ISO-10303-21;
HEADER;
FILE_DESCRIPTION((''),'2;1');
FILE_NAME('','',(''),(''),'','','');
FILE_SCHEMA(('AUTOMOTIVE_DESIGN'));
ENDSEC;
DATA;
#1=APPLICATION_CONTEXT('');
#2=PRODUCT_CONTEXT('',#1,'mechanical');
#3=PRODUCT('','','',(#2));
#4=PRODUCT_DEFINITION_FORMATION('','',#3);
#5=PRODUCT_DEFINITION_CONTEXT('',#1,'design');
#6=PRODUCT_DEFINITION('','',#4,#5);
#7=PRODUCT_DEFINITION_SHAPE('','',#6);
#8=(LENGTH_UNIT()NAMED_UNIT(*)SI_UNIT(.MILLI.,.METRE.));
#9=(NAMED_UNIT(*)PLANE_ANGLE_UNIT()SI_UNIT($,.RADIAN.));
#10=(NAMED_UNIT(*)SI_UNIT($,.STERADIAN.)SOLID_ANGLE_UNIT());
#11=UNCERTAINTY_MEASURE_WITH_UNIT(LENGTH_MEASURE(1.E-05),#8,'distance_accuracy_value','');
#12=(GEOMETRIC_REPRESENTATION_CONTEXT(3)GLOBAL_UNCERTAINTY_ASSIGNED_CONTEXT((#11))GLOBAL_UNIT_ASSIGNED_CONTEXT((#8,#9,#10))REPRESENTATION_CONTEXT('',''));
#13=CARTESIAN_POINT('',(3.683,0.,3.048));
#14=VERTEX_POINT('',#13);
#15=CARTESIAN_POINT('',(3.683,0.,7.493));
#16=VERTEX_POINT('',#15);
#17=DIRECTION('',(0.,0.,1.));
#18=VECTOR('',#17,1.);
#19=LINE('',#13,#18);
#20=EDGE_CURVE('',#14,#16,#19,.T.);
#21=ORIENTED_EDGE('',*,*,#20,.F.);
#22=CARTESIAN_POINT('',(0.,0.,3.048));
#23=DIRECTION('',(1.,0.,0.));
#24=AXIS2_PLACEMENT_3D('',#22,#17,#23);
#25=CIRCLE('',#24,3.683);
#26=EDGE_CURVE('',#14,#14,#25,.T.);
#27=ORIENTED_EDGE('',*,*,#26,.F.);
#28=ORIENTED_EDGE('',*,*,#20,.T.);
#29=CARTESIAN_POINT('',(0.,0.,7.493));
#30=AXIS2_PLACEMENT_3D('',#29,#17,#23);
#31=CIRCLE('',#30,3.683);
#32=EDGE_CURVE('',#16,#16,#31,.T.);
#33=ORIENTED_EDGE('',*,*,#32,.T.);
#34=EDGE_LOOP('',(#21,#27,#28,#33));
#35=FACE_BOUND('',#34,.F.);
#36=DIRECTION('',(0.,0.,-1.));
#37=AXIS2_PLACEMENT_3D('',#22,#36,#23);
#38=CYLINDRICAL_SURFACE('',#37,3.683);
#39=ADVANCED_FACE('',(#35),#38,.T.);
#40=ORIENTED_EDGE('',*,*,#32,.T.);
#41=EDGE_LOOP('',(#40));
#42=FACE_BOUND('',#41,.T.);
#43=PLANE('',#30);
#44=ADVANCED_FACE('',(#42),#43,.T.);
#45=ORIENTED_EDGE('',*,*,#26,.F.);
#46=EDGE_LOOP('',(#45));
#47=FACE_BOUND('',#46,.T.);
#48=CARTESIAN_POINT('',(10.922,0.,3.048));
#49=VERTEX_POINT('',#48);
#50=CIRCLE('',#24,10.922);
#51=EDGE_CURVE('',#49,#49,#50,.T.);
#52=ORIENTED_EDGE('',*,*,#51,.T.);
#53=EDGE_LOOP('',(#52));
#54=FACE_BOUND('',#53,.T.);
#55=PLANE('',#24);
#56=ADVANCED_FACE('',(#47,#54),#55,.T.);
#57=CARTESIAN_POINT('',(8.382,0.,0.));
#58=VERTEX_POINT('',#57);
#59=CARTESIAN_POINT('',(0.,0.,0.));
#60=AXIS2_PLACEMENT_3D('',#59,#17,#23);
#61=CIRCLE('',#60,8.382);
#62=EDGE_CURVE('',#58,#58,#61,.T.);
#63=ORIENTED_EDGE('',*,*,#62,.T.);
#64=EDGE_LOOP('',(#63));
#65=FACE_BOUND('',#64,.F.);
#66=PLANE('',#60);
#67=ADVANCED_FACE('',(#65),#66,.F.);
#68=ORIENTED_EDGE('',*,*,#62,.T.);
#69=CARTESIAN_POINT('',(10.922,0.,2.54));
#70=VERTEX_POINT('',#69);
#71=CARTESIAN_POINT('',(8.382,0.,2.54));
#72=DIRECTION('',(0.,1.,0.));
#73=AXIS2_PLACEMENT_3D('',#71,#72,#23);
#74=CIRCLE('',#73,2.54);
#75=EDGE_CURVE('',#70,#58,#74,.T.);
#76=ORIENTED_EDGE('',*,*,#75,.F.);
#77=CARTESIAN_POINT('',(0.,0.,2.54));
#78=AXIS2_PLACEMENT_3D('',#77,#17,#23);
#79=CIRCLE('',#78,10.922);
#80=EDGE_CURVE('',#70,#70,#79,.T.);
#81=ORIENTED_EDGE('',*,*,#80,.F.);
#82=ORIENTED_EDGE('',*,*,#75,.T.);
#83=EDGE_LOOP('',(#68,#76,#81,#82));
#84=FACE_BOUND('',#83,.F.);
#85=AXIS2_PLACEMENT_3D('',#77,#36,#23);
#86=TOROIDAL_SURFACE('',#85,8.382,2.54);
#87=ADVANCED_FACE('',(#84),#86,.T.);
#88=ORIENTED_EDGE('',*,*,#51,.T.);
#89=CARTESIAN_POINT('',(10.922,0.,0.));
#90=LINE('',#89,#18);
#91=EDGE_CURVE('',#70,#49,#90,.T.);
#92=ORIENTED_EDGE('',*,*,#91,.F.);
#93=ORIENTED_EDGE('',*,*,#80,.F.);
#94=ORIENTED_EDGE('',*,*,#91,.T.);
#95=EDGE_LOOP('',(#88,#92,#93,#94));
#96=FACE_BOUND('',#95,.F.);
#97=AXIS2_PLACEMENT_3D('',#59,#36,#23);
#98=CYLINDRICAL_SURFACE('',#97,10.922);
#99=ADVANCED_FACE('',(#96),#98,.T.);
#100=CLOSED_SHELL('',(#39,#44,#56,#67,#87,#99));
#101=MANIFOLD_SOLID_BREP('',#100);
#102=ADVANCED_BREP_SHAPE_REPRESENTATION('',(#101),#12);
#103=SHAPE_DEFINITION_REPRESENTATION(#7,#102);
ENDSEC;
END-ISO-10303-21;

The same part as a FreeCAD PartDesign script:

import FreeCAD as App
import Part
import Sketcher
Q = App.Units.Quantity


def edges_at(feature, points):
    """Names of the edges that pass closest to the given points."""
    edges = feature.Shape.Edges
    near = lambda p: min(range(len(edges)), key=lambda i: edges[i].distToShape(Part.Vertex(*p))[0])
    return sorted({f"Edge{near(p) + 1}" for p in points})

doc = App.newDocument("Part")
params = doc.addObject("Spreadsheet::Sheet", "Params")
for row, (alias, value) in enumerate([
    ("sketch1_diameter", "0.86 in"),
    ("pad1_length", "0.12 in"),
    ("fillet_radius", "0.1 in"),
    ("sketch2_diameter", "0.29 in"),
    ("pad2_length", "0.175 in"),
], start=1):
    params.set(f"A{row}", alias)
    params.set(f"B{row}", "=" + value)
    params.setAlias(f"B{row}", alias)

body = doc.addObject("PartDesign::Body", "Body")

sketch1 = body.newObject("Sketcher::SketchObject", "Sketch")
sketch1.AttachmentSupport = (doc.getObject("XY_Plane"), [""])
sketch1.MapMode = "FlatFace"
sketch1.addGeometry(Part.Circle(App.Vector(0, 0, 0), App.Vector(0, 0, 1), 10.922), False)
sketch1.addConstraint(Sketcher.Constraint("Coincident", 0, 3, -1, 1))
sketch1.addConstraint(Sketcher.Constraint("Diameter", 0, Q("0.86 in")))
sketch1.setExpression("Constraints[1]", "Params.sketch1_diameter")
pad1 = body.newObject("PartDesign::Pad", "Pad")
pad1.Profile = sketch1
pad1.setExpression("Length", "Params.pad1_length")
doc.recompute()

fillet = body.newObject("PartDesign::Fillet", "Fillet")
fillet.Base = (pad1, edges_at(pad1, [(-10.922, 0, 0)]))
fillet.setExpression("Radius", "Params.fillet_radius")

sketch2 = body.newObject("Sketcher::SketchObject", "Sketch001")
sketch2.AttachmentSupport = (doc.getObject("XY_Plane"), [""])
sketch2.MapMode = "FlatFace"
sketch2.AttachmentOffset = App.Placement(App.Vector(0, 0, 0.12 * 25.4), App.Rotation())
sketch2.addGeometry(Part.Circle(App.Vector(0, 0, 0), App.Vector(0, 0, 1), 3.683), False)
sketch2.addConstraint(Sketcher.Constraint("Coincident", 0, 3, -1, 1))
sketch2.addConstraint(Sketcher.Constraint("Diameter", 0, Q("0.29 in")))
sketch2.setExpression("Constraints[1]", "Params.sketch2_diameter")
pad2 = body.newObject("PartDesign::Pad", "Pad001")
pad2.Profile = sketch2
pad2.setExpression("Length", "Params.pad2_length")

doc.recompute()
